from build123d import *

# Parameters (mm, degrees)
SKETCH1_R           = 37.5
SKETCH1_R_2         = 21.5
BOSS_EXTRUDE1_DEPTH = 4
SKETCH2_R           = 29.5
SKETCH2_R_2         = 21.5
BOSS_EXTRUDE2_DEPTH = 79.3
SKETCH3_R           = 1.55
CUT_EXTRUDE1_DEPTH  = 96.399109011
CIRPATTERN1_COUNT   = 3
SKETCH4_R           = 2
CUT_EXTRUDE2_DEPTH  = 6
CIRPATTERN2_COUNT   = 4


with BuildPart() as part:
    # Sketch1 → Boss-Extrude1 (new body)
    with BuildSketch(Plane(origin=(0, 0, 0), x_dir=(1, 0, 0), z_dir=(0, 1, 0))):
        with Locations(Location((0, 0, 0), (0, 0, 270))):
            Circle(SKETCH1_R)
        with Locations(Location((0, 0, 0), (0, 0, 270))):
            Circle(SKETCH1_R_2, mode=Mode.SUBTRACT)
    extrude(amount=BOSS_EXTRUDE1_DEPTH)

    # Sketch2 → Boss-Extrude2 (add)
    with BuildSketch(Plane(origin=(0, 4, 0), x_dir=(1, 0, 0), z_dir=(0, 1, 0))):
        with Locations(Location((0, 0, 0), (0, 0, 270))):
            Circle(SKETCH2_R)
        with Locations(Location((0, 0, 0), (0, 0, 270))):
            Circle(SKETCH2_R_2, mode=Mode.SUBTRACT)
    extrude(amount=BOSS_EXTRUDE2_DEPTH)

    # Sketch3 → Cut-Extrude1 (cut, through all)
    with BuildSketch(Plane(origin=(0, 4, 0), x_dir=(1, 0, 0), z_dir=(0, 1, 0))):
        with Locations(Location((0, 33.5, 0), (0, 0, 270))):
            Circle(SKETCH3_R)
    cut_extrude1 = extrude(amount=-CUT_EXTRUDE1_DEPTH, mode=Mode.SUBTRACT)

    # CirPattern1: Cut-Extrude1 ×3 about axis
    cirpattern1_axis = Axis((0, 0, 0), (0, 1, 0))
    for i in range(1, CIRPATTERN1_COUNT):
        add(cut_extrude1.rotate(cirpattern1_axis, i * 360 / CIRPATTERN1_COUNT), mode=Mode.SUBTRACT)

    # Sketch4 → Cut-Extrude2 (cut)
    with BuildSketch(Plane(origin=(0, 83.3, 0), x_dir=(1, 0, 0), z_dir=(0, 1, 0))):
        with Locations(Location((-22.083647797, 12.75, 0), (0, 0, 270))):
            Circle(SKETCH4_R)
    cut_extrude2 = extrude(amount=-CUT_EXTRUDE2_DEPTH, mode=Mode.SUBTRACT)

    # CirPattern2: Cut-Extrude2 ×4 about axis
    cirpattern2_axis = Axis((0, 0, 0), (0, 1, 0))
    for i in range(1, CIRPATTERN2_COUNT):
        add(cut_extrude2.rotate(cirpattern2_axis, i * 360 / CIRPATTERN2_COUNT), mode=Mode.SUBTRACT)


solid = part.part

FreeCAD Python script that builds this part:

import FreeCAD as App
import Part
import Sketcher
from FreeCAD import Vector

doc = App.newDocument("Part")
body = doc.addObject("PartDesign::Body", "Body")

sketch1 = doc.addObject("Sketcher::SketchObject", "Sketch")
body.addObject(sketch1)
sketch1.AttachmentSupport = (doc.XZ_Plane, [""])
sketch1.MapMode = "FlatFace"
sketch1.addGeometry([
    Part.Circle(Vector(0, 0, 0), Vector(0, 0, 1), 38),
    Part.Circle(Vector(0, 0, 0), Vector(0, 0, 1), 22),
], False)
sketch1.addConstraint([
    Sketcher.Constraint("Coincident", 0, 3, -1, 1),
    Sketcher.Constraint("Coincident", 1, 3, -1, 1),
    Sketcher.Constraint("Diameter", 0, 75.0),
    Sketcher.Constraint("Diameter", 1, 43.0),
])
pad1 = doc.addObject("PartDesign::Pad", "Pad")
body.addObject(pad1)
pad1.Profile = sketch1
pad1.Length = 4
pad1.Reversed = True

sketch2 = doc.addObject("Sketcher::SketchObject", "Sketch001")
body.addObject(sketch2)
sketch2.AttachmentSupport = (doc.XZ_Plane, [""])
sketch2.MapMode = "FlatFace"
sketch2.AttachmentOffset = App.Placement(Vector(0, 0, -4), App.Rotation())
sketch2.addGeometry([
    Part.Circle(Vector(0, 0, 0), Vector(0, 0, 1), 30),
    Part.Circle(Vector(0, 0, 0), Vector(0, 0, 1), 22),
], False)
sketch2.addConstraint([
    Sketcher.Constraint("Coincident", 0, 3, -1, 1),
    Sketcher.Constraint("Coincident", 1, 3, -1, 1),
    Sketcher.Constraint("Diameter", 0, 59.0),
    Sketcher.Constraint("Diameter", 1, 43.0),
])
pad2 = doc.addObject("PartDesign::Pad", "Pad001")
body.addObject(pad2)
pad2.Profile = sketch2
pad2.Length = 79.3
pad2.Reversed = True

sketch3 = doc.addObject("Sketcher::SketchObject", "Sketch002")
body.addObject(sketch3)
sketch3.AttachmentSupport = (doc.XZ_Plane, [""])
sketch3.MapMode = "FlatFace"
sketch3.AttachmentOffset = App.Placement(Vector(0, 0, -4), App.Rotation())
sketch3.addGeometry(Part.Circle(Vector(0, -33.5, 0), Vector(0, 0, 1), 1.6), False)
sketch3.addConstraint([
    Sketcher.Constraint("PointOnObject", 0, 3, -2),
    Sketcher.Constraint("Diameter", 0, 3.1),
    Sketcher.Constraint("DistanceY", 0, 3, -1, 1, 33.5),
])
pocket1 = doc.addObject("PartDesign::Pocket", "Pocket")
body.addObject(pocket1)
pocket1.Profile = sketch3
pocket1.Type = "ThroughAll"
pocket1.Reversed = True
doc.recompute()

polarpattern = doc.addObject("PartDesign::PolarPattern", "PolarPattern")
body.addObject(polarpattern)
polarpattern.Originals = [pocket1]
polarpattern.Axis = (doc.Y_Axis, [""])
polarpattern.Angle = 360
polarpattern.Occurrences = 3
body.Tip = polarpattern

sketch4 = doc.addObject("Sketcher::SketchObject", "Sketch003")
body.addObject(sketch4)
sketch4.AttachmentSupport = (doc.XZ_Plane, [""])
sketch4.MapMode = "FlatFace"
sketch4.AttachmentOffset = App.Placement(Vector(0, 0, -83.3), App.Rotation())
sketch4.addGeometry(Part.Circle(Vector(-22.1, -12.8, 0), Vector(0, 0, 1), 2), False)
sketch4.addConstraint([
    Sketcher.Constraint("Diameter", 0, 4.0),
    Sketcher.Constraint("DistanceY", 0, 3, -1, 1, 12.75),
    Sketcher.Constraint("DistanceX", 0, 3, -1, 1, 22.083648),
])
pocket2 = doc.addObject("PartDesign::Pocket", "Pocket001")
body.addObject(pocket2)
pocket2.Profile = sketch4
pocket2.Length = 6
pocket2.Reversed = True
doc.recompute()

polarpattern2 = doc.addObject("PartDesign::PolarPattern", "PolarPattern001")
body.addObject(polarpattern2)
polarpattern2.Originals = [pocket2]
polarpattern2.Axis = (doc.Y_Axis, [""])
polarpattern2.Angle = 360
polarpattern2.Occurrences = 4
body.Tip = polarpattern2

doc.recompute()
